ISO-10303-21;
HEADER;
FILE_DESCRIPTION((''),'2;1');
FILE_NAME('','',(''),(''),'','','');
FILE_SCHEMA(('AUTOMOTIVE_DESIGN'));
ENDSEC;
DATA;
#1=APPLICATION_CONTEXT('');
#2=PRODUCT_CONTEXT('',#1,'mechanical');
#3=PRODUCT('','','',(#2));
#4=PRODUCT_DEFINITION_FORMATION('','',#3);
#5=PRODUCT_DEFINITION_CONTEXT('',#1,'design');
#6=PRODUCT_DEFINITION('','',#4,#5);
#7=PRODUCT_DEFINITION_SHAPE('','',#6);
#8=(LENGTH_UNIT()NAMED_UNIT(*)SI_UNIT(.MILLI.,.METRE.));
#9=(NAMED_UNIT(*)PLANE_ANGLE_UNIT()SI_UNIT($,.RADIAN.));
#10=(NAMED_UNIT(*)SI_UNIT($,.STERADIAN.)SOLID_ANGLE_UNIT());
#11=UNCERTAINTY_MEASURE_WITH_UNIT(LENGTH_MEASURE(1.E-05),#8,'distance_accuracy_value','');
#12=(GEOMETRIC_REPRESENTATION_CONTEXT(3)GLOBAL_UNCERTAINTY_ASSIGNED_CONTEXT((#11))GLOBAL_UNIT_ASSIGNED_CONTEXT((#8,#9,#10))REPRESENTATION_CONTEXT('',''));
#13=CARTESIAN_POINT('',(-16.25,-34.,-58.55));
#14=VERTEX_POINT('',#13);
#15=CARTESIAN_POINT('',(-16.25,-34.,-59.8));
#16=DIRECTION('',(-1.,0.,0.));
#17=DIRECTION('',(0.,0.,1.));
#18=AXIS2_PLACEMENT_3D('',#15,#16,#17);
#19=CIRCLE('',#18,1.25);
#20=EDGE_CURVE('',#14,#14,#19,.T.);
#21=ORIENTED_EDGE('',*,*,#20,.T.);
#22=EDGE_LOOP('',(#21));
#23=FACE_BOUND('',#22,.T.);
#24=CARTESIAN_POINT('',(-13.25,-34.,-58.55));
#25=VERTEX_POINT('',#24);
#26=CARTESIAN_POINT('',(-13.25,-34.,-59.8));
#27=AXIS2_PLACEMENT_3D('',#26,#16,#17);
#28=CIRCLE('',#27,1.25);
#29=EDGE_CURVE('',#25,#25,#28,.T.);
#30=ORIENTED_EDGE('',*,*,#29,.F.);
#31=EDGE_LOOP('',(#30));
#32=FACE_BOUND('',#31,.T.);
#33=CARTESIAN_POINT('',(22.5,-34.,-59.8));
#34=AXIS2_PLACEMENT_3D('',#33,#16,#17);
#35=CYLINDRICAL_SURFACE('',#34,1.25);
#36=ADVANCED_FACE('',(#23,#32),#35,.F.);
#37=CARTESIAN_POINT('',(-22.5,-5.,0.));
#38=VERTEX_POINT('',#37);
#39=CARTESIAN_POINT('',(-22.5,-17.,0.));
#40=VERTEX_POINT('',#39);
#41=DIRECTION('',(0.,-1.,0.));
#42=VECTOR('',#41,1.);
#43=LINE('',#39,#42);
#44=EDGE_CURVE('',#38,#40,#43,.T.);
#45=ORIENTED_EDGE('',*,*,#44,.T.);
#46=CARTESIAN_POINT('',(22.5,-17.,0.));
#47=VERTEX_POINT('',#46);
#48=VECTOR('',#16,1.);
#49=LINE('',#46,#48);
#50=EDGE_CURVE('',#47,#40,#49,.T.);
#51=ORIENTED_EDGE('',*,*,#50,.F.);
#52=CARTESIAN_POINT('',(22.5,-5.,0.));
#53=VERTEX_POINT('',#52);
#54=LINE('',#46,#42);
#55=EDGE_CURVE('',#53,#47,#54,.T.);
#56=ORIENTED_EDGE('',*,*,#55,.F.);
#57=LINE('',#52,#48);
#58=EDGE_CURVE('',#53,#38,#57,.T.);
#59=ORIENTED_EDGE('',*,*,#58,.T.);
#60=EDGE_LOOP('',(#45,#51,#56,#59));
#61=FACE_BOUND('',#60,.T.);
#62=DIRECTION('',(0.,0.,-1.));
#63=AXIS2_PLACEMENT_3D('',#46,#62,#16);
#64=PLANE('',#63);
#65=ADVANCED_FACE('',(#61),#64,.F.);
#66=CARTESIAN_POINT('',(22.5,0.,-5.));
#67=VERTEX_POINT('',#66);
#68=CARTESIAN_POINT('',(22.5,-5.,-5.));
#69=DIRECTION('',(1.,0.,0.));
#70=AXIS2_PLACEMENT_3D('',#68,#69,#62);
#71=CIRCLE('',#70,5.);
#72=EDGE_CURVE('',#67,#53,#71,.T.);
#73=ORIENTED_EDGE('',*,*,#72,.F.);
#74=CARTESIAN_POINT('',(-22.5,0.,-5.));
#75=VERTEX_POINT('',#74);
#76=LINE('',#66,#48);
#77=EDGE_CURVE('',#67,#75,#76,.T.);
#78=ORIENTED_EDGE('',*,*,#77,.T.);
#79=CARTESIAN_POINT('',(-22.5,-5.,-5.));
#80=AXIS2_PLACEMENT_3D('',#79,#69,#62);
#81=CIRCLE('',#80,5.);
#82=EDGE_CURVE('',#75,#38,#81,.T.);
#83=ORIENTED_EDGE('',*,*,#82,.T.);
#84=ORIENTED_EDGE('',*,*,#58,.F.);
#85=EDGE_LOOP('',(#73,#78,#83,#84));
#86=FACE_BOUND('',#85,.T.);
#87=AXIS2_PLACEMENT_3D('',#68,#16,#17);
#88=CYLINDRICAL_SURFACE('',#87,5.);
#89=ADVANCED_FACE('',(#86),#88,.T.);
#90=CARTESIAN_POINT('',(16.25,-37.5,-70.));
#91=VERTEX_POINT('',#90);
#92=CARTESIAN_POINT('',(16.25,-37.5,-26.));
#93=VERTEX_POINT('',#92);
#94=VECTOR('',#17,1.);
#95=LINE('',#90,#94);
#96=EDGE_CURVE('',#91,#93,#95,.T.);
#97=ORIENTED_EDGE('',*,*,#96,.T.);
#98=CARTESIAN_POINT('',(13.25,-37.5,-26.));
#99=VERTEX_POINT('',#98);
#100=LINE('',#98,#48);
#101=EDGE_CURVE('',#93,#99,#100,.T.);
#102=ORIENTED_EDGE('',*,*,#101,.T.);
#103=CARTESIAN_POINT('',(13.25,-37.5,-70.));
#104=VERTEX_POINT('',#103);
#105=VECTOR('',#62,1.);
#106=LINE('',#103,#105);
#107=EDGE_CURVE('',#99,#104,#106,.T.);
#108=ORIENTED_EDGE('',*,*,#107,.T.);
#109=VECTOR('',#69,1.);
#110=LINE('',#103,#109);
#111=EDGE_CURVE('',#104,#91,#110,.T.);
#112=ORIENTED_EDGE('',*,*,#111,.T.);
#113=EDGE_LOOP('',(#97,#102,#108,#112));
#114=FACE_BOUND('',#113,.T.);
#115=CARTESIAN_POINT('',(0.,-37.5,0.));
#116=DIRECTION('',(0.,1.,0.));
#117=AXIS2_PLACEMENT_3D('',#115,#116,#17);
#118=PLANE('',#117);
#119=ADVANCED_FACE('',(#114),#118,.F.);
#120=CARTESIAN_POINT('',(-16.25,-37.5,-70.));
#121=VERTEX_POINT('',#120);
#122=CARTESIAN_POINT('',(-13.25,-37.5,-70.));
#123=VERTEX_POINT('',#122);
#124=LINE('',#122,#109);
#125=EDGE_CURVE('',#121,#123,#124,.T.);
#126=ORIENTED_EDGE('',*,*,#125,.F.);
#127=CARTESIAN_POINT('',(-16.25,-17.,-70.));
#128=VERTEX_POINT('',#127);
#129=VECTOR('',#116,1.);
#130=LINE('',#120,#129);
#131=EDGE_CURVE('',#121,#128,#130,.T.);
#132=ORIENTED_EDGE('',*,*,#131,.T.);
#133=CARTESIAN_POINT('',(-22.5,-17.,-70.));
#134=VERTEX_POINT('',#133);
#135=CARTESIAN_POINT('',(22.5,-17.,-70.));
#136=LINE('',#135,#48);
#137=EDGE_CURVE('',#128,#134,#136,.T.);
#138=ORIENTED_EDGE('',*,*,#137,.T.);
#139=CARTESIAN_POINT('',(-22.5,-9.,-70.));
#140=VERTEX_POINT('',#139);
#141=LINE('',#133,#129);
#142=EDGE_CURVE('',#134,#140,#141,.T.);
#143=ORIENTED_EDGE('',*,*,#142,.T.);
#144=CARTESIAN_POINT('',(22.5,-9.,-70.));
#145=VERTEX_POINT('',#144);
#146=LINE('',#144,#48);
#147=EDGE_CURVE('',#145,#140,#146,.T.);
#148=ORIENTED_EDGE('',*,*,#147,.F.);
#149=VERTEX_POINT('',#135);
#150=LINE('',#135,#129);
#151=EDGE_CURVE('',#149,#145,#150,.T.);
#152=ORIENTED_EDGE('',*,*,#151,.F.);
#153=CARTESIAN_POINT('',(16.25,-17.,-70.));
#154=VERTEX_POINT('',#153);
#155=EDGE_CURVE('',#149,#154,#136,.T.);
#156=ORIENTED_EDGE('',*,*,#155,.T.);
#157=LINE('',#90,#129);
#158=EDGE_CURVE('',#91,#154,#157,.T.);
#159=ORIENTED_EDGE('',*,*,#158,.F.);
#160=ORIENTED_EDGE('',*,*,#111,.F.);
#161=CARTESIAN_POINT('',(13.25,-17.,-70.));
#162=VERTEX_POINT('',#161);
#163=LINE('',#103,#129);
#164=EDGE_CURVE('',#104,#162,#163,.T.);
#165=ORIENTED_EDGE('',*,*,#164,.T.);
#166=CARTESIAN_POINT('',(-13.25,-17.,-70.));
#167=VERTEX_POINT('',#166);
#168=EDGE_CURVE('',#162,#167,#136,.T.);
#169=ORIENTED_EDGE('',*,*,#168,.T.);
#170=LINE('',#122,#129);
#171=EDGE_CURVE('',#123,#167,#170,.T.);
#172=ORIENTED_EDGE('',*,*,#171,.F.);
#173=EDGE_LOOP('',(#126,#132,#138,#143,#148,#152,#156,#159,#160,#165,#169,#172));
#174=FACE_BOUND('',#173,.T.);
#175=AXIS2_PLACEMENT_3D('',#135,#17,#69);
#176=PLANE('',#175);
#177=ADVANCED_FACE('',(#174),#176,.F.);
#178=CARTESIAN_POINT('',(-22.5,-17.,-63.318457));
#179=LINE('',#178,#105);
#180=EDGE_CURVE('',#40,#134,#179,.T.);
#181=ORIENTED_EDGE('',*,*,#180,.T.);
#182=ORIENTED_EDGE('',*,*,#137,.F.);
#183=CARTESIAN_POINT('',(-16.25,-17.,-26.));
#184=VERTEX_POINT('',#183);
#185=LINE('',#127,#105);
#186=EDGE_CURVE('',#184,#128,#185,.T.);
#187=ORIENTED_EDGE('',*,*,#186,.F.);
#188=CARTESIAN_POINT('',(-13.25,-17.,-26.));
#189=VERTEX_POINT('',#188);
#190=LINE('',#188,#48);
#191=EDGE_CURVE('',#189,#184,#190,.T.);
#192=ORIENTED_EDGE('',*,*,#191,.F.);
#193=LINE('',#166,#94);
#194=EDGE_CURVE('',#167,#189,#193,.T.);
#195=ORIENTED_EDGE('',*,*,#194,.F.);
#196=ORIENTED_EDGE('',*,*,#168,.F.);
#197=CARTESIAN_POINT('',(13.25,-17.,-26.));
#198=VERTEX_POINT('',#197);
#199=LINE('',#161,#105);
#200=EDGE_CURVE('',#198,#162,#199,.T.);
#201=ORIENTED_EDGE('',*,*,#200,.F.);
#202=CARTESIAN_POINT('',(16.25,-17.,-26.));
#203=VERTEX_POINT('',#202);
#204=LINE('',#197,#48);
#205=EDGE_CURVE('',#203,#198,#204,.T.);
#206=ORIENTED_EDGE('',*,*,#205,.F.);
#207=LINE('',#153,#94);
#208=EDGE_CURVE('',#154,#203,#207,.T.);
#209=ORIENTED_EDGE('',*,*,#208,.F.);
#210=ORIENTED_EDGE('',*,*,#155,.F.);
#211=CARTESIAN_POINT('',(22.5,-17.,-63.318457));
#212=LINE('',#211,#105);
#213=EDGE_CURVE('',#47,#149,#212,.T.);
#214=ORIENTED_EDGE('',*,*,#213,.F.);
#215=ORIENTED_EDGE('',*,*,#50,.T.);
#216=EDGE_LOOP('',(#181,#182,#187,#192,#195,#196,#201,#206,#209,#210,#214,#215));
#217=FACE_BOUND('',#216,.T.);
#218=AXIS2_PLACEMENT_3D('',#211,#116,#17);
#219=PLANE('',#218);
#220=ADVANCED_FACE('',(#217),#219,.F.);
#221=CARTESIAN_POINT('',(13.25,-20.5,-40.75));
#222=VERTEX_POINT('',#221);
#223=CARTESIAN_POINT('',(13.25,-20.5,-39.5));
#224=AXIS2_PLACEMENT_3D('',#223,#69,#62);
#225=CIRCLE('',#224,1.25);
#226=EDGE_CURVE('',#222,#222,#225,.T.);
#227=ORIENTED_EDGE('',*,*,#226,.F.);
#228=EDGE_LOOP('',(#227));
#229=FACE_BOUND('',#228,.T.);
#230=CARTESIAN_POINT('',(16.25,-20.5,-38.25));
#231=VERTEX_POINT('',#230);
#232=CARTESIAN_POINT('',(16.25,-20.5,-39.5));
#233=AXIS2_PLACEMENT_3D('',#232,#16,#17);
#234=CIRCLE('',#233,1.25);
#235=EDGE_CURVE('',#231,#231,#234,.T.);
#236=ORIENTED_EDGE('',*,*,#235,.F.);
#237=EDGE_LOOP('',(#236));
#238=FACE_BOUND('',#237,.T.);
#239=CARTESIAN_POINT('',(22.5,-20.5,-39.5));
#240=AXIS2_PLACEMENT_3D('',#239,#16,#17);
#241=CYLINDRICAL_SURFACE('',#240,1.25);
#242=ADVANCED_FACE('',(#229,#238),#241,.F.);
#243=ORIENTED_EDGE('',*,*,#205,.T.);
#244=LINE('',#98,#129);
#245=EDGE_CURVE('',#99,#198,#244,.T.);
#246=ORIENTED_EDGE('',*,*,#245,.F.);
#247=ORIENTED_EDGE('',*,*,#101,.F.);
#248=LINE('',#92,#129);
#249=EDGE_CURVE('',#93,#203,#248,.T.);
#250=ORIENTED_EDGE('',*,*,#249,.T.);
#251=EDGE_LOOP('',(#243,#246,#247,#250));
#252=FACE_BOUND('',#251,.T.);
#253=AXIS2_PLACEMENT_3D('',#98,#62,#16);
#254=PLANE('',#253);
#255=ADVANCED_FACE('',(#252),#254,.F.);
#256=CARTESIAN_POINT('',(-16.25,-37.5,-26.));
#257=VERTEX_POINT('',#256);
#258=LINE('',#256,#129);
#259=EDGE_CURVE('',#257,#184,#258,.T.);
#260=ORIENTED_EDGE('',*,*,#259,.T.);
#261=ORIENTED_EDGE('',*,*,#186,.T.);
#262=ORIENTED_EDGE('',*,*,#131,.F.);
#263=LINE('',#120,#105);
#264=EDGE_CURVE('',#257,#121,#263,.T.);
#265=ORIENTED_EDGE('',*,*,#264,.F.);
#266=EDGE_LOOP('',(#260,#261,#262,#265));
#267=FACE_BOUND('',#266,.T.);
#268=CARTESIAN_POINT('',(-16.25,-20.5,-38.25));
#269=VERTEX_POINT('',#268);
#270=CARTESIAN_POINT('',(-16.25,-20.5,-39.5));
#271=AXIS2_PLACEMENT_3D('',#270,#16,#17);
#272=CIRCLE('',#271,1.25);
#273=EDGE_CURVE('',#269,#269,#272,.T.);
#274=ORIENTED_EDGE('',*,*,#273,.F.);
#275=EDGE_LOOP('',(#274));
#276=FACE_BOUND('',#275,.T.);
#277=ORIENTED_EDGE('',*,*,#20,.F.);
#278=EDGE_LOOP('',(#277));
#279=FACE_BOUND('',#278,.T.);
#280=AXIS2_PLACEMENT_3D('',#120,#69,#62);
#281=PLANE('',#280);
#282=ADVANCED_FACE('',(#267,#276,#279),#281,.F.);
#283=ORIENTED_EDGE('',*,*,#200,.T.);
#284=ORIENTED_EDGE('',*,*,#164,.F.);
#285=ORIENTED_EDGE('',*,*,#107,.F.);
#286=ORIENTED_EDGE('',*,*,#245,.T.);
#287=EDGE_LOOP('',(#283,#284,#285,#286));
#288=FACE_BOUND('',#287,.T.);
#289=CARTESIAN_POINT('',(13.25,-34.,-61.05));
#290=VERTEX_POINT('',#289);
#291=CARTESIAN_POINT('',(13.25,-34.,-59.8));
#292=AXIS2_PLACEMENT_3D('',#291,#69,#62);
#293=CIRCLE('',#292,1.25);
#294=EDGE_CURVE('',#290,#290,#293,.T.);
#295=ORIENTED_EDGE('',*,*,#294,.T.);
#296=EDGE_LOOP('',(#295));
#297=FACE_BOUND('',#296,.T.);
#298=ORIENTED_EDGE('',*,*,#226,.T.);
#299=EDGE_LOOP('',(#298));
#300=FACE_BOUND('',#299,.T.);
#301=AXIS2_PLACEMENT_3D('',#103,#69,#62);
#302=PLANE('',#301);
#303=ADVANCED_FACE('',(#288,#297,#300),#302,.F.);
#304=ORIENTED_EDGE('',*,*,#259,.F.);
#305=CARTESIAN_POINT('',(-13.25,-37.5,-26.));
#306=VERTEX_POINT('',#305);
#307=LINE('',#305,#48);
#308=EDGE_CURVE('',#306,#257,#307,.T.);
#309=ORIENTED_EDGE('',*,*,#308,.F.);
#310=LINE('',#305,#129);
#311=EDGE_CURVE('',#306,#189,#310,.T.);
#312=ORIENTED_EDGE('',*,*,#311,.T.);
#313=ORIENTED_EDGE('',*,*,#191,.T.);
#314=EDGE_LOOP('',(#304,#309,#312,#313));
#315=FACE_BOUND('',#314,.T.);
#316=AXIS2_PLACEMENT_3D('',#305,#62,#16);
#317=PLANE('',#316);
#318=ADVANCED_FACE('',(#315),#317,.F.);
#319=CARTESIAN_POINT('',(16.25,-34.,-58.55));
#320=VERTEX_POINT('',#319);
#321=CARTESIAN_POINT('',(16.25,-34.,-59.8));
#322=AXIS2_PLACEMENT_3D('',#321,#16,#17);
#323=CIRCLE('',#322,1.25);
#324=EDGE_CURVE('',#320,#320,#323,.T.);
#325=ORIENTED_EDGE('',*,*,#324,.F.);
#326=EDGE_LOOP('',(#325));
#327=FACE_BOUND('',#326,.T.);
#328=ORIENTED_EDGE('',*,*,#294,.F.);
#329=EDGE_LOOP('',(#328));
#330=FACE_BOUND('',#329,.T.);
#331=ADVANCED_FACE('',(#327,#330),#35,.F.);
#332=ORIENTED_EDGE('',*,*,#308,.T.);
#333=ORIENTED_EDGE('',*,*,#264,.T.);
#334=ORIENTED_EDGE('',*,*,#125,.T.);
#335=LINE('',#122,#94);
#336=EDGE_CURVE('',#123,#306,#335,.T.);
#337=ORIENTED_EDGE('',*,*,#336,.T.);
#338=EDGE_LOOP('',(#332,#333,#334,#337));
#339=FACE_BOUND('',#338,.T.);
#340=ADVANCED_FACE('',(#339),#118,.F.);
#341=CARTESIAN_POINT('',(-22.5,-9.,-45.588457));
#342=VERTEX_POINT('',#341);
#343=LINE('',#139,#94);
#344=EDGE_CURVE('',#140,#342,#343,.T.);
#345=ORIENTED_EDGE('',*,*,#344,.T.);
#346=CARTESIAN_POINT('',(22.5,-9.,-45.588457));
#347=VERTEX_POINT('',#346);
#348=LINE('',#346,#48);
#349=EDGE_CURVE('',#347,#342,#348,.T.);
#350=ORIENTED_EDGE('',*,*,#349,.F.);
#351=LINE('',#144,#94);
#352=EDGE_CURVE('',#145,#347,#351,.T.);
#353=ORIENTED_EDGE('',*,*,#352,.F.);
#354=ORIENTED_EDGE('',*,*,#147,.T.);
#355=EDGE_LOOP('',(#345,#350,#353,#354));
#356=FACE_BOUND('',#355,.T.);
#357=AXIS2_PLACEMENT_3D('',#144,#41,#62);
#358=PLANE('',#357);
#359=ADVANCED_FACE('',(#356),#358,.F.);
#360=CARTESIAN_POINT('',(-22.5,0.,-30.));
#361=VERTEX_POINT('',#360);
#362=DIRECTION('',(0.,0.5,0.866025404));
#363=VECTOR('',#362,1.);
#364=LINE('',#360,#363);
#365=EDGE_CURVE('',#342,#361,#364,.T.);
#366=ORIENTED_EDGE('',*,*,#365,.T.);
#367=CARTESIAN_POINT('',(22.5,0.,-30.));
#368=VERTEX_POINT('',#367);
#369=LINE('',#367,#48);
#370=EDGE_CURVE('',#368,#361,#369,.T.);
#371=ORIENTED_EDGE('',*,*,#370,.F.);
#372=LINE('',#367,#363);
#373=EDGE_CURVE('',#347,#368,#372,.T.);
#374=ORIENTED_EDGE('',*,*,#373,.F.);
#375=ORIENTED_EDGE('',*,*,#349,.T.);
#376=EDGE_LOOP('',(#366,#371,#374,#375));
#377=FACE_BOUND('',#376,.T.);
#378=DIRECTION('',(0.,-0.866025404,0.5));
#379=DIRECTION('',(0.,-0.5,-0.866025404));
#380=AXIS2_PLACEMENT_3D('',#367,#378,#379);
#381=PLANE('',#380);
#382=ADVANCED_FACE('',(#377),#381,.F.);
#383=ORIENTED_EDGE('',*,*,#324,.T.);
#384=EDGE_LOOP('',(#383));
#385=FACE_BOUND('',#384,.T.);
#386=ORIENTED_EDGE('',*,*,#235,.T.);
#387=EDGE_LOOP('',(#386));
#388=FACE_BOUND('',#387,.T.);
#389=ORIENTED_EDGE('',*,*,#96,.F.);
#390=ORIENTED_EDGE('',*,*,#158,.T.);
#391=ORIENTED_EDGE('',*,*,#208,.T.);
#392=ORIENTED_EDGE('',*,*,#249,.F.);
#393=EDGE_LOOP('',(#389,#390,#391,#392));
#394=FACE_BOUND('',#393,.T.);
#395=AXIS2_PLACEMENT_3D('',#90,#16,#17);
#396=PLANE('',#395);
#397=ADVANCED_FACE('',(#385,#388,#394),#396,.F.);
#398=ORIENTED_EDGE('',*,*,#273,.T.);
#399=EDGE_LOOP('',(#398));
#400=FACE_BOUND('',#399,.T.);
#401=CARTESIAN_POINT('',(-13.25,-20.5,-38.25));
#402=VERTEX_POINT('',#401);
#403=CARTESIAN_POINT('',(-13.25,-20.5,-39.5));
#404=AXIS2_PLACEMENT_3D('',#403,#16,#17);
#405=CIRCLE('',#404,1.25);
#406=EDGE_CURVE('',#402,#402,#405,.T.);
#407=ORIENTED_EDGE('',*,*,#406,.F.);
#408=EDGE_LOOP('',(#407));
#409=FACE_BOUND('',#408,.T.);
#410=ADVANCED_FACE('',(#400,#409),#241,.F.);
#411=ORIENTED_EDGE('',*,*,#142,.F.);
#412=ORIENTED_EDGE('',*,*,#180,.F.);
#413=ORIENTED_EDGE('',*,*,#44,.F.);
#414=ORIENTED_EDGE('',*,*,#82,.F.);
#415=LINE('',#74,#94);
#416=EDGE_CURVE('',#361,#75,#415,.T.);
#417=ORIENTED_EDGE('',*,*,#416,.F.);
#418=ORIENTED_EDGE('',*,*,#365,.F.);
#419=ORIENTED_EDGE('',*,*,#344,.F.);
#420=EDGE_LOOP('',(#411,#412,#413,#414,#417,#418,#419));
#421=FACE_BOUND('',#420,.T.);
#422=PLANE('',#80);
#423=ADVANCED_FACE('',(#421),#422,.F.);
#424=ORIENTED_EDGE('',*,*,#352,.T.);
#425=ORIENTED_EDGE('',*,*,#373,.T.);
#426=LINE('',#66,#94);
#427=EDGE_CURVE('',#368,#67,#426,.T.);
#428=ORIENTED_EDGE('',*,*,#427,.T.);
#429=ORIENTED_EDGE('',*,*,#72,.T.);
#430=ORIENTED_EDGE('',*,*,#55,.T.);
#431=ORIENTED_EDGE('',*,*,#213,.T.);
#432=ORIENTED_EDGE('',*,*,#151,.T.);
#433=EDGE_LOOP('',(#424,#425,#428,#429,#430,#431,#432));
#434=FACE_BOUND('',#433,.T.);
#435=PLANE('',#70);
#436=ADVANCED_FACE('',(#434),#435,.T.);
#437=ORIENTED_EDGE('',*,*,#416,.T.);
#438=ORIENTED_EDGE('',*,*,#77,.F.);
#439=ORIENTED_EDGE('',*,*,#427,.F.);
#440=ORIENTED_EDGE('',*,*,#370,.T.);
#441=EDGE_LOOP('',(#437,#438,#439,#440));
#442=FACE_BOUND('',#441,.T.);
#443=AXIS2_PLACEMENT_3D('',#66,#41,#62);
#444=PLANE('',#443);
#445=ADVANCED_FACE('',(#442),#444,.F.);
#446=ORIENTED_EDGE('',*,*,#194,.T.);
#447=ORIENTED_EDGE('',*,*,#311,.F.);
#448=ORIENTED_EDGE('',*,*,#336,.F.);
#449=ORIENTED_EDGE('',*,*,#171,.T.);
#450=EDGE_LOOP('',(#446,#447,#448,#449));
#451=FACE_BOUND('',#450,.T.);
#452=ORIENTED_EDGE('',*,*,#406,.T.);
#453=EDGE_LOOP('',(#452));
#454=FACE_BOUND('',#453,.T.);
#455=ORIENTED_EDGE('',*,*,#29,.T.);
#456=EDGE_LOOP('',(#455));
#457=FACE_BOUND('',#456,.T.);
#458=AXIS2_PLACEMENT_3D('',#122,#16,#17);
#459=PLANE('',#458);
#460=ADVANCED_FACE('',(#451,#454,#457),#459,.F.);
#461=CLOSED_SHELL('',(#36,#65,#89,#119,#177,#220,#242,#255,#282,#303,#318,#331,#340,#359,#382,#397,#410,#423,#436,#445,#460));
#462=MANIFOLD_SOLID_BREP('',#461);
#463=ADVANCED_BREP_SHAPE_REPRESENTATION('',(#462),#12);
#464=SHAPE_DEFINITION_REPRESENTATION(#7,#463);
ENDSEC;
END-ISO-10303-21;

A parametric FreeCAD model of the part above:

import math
import FreeCAD as App
import Part
import Sketcher

V = App.Vector
Q = App.Units.Quantity


def add_polygon(sketch, points):
    """Adds a closed chain of lines whose ends are joined by coincident constraints."""
    first, n = sketch.GeometryCount, len(points)
    for a, b in zip(points, points[1:] + points[:1]):
        sketch.addGeometry(Part.LineSegment(App.Vector(*a, 0), App.Vector(*b, 0)), False)
    for i in range(n):
        sketch.addConstraint(Sketcher.Constraint("Coincident", first + i, 2, first + (i + 1) % n, 1))

doc = App.newDocument("Part")
body = doc.addObject("PartDesign::Body", "Body")

# Sketch on YZ plane
sketch1 = body.newObject("Sketcher::SketchObject", "Sketch")
sketch1.AttachmentSupport = (doc.getObject("YZ_Plane"), [""])
sketch1.MapMode = "FlatFace"
sketch1.addGeometry(Part.LineSegment(V(0, -30, 0), V(0, -5, 0)), False)
sketch1.addGeometry(Part.ArcOfCircle(Part.Circle(V(-5, -5, 0), V(0, 0, 1), 5), math.radians(0), math.radians(90)), False)
sketch1.addGeometry(Part.LineSegment(V(-5, 0, 0), V(-17, 0, 0)), False)
sketch1.addGeometry(Part.LineSegment(V(-17, 0, 0), V(-17, -70, 0)), False)
sketch1.addGeometry(Part.LineSegment(V(-17, -70, 0), V(-9, -70, 0)), False)
sketch1.addGeometry(Part.LineSegment(V(-9, -70, 0), V(-9, -46, 0)), False)
sketch1.addGeometry(Part.LineSegment(V(-9, -46, 0), V(0, -30, 0)), False)
sketch1.addConstraint(Sketcher.Constraint("Tangent", 0, 2, 1, 1))
sketch1.addConstraint(Sketcher.Constraint("Tangent", 1, 2, 2, 1))
sketch1.addConstraint(Sketcher.Constraint("Coincident", 2, 2, 3, 1))
sketch1.addConstraint(Sketcher.Constraint("Coincident", 3, 2, 4, 1))
sketch1.addConstraint(Sketcher.Constraint("Coincident", 4, 2, 5, 1))
sketch1.addConstraint(Sketcher.Constraint("Coincident", 5, 2, 6, 1))
sketch1.addConstraint(Sketcher.Constraint("Coincident", 6, 2, 0, 1))
sketch1.addConstraint(Sketcher.Constraint("Vertical", 0))
sketch1.addConstraint(Sketcher.Constraint("Horizontal", 2))
sketch1.addConstraint(Sketcher.Constraint("Vertical", 3))
sketch1.addConstraint(Sketcher.Constraint("Horizontal", 4))
sketch1.addConstraint(Sketcher.Constraint("Vertical", 5))
sketch1.addConstraint(Sketcher.Constraint("PointOnObject", 0, 2, -2))
sketch1.addConstraint(Sketcher.Constraint("PointOnObject", 1, 2, -1))
sketch1.addConstraint(Sketcher.Constraint("Radius", 1, Q("5 mm")))
sketch1.addConstraint(Sketcher.Constraint("DistanceX", 2, 2, 2, 1, Q("12 mm")))
sketch1.addConstraint(Sketcher.Constraint("DistanceX", 4, 1, 4, 2, Q("8 mm")))
sketch1.addConstraint(Sketcher.Constraint("DistanceY", 0, 1, 0, 2, Q("25 mm")))
sketch1.addConstraint(Sketcher.Constraint("DistanceY", 3, 2, 3, 1, Q("70 mm")))
sketch1.addConstraint(Sketcher.Constraint("Angle", 6, Q("60 deg")))
pad1 = body.newObject("PartDesign::Pad", "Pad")
pad1.Profile = sketch1
pad1.Length = 45
pad1.Midplane = True

# Sketch on XZ plane
sketch2 = body.newObject("Sketcher::SketchObject", "Sketch001")
sketch2.AttachmentSupport = (doc.getObject("XZ_Plane"), [""])
sketch2.MapMode = "FlatFace"
sketch2.AttachmentOffset = App.Placement(V(0, 0, 17), App.Rotation())
add_polygon(sketch2, [(13.2, -26), (13.2, -70), (16.2, -70), (16.2, -26)])  # lines 0-3
add_polygon(sketch2, [(-16.2, -26), (-16.2, -70), (-13.2, -70), (-13.2, -26)])  # lines 4-7
sketch2.addConstraint(Sketcher.Constraint("Vertical", 0))
sketch2.addConstraint(Sketcher.Constraint("Horizontal", 1))
sketch2.addConstraint(Sketcher.Constraint("Vertical", 2))
sketch2.addConstraint(Sketcher.Constraint("Horizontal", 3))
sketch2.addConstraint(Sketcher.Constraint("Vertical", 4))
sketch2.addConstraint(Sketcher.Constraint("Horizontal", 5))
sketch2.addConstraint(Sketcher.Constraint("Vertical", 6))
sketch2.addConstraint(Sketcher.Constraint("Horizontal", 7))
sketch2.addConstraint(Sketcher.Constraint("Symmetric", 1, 2, 4, 2, -2))
sketch2.addConstraint(Sketcher.Constraint("Symmetric", 3, 2, 6, 2, -2))
sketch2.addConstraint(Sketcher.Constraint("DistanceX", 1, 1, 1, 2, Q("3 mm")))
sketch2.addConstraint(Sketcher.Constraint("DistanceY", 0, 2, 0, 1, Q("44 mm")))
sketch2.addConstraint(Sketcher.Constraint("DistanceY", 0, 2, -1, 1, Q("70 mm")))
sketch2.addConstraint(Sketcher.Constraint("DistanceX", 4, 2, 0, 2, Q("29.5 mm")))
pad2 = body.newObject("PartDesign::Pad", "Pad001")
pad2.Profile = sketch2
pad2.Length = 20.5

# Sketch on YZ plane
sketch3 = body.newObject("Sketcher::SketchObject", "Sketch002")
sketch3.AttachmentSupport = (doc.getObject("YZ_Plane"), [""])
sketch3.MapMode = "FlatFace"
sketch3.AttachmentOffset = App.Placement(V(0, 0, -16.25), App.Rotation())
sketch3.addGeometry(Part.Circle(V(-34, -59.8, 0), V(0, 0, 1), 1.2), False)
sketch3.addGeometry(Part.Circle(V(-20.5, -39.5, 0), V(0, 0, 1), 1.2), False)
sketch3.addConstraint(Sketcher.Constraint("Equal", 0, 1))
sketch3.addConstraint(Sketcher.Constraint("Diameter", 0, Q("2.5 mm")))
sketch3.addConstraint(Sketcher.Constraint("DistanceX", 0, 3, -1, 1, Q("34 mm")))
sketch3.addConstraint(Sketcher.Constraint("DistanceY", 0, 3, -1, 1, Q("59.8 mm")))
sketch3.addConstraint(Sketcher.Constraint("DistanceX", 1, 3, -1, 1, Q("20.5 mm")))
sketch3.addConstraint(Sketcher.Constraint("DistanceY", 1, 3, -1, 1, Q("39.5 mm")))
pocket1 = body.newObject("PartDesign::Pocket", "Pocket")
pocket1.Profile = sketch3
pocket1.Type = "ThroughAll"
pocket1.Reversed = True

doc.recompute()
